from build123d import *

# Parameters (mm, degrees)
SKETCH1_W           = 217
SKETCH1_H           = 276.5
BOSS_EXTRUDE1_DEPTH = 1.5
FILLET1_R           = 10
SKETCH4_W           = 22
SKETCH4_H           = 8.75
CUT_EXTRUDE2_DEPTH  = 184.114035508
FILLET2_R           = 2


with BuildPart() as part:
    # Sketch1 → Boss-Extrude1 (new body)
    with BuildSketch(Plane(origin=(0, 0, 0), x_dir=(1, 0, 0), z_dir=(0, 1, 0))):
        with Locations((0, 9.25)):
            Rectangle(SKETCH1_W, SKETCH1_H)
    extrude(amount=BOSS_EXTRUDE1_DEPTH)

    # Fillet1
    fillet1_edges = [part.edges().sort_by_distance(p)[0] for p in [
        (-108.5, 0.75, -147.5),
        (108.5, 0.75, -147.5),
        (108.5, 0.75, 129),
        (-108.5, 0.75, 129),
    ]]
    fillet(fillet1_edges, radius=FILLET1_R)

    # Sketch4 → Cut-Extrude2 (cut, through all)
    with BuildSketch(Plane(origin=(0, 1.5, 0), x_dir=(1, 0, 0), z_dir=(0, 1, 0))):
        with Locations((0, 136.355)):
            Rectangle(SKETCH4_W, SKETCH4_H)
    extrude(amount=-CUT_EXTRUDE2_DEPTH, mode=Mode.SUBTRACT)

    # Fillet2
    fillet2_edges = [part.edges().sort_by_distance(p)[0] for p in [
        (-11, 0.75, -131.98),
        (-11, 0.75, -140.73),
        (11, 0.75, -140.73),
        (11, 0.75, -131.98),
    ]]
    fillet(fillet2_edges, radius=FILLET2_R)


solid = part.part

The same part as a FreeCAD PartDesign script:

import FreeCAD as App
import Part
import Sketcher
from FreeCAD import Vector


def edges_at(feature, points):
    """Names of the edges that pass closest to the given points."""
    edges = feature.Shape.Edges
    near = lambda p: min(range(len(edges)), key=lambda i: edges[i].distToShape(Part.Vertex(*p))[0])
    return sorted({f"Edge{near(p) + 1}" for p in points})

doc = App.newDocument("Part")
params = doc.addObject("Spreadsheet::Sheet", "Params")
for row, (alias, value) in enumerate([
    ("sketch1_width", "217 mm"),
    ("sketch1_height", "276.5 mm"),
    ("pad1_length", "1.5 mm"),
    ("fillet_radius", "10 mm"),
    ("sketch2_width", "22 mm"),
    ("sketch2_height", "8.75 mm"),
    ("fillet2_radius", "2 mm"),
], start=1):
    params.set(f"A{row}", alias)
    params.set(f"B{row}", "=" + value)
    params.setAlias(f"B{row}", alias)

body = doc.addObject("PartDesign::Body", "Body")

# Sketch on XZ plane
sketch1 = body.newObject("Sketcher::SketchObject", "Sketch")
sketch1.AttachmentSupport = (doc.getObject("XZ_Plane"), [""])
sketch1.MapMode = "FlatFace"
sketch1.addGeometry(Part.LineSegment(Vector(-108, -148, 0), Vector(-108, 129, 0)), False)
sketch1.addGeometry(Part.LineSegment(Vector(-108, 129, 0), Vector(108, 129, 0)), False)
sketch1.addGeometry(Part.LineSegment(Vector(108, 129, 0), Vector(108, -148, 0)), False)
sketch1.addGeometry(Part.LineSegment(Vector(108, -148, 0), Vector(-108, -148, 0)), False)
sketch1.addConstraint(Sketcher.Constraint("Coincident", 0, 2, 1, 1))
sketch1.addConstraint(Sketcher.Constraint("Coincident", 1, 2, 2, 1))
sketch1.addConstraint(Sketcher.Constraint("Coincident", 2, 2, 3, 1))
sketch1.addConstraint(Sketcher.Constraint("Coincident", 3, 2, 0, 1))
sketch1.addConstraint(Sketcher.Constraint("Vertical", 0))
sketch1.addConstraint(Sketcher.Constraint("Horizontal", 1))
sketch1.addConstraint(Sketcher.Constraint("Vertical", 2))
sketch1.addConstraint(Sketcher.Constraint("Horizontal", 3))
sketch1.addConstraint(Sketcher.Constraint("DistanceX", 1, 1, 1, 2, 217.0))
sketch1.addConstraint(Sketcher.Constraint("DistanceY", 0, 1, 0, 2, 276.5))
sketch1.addConstraint(Sketcher.Constraint("DistanceY", -1, 1, 0, 2, 129.0))
sketch1.addConstraint(Sketcher.Constraint("DistanceX", 0, 2, -1, 1, 108.5))
sketch1.setExpression("Constraints[8]", "Params.sketch1_width")
sketch1.setExpression("Constraints[9]", "Params.sketch1_height")
pad1 = body.newObject("PartDesign::Pad", "Pad")
pad1.Profile = sketch1
pad1.setExpression("Length", "Params.pad1_length")
pad1.Reversed = True
doc.recompute()

fillet = body.newObject("PartDesign::Fillet", "Fillet")
fillet.Base = (pad1, edges_at(pad1, [
    (-108.5, 0.75, -147.5),
    (108.5, 0.75, -147.5),
    (108.5, 0.75, 129),
    (-108.5, 0.75, 129),
]))
fillet.setExpression("Radius", "Params.fillet_radius")

# Sketch on XZ plane
sketch2 = body.newObject("Sketcher::SketchObject", "Sketch001")
sketch2.AttachmentSupport = (doc.getObject("XZ_Plane"), [""])
sketch2.MapMode = "FlatFace"
sketch2.AttachmentOffset = App.Placement(Vector(0, 0, -1.5), App.Rotation())
sketch2.addGeometry(Part.LineSegment(Vector(-11, -141, 0), Vector(-11, -132, 0)), False)
sketch2.addGeometry(Part.LineSegment(Vector(-11, -132, 0), Vector(11, -132, 0)), False)
sketch2.addGeometry(Part.LineSegment(Vector(11, -132, 0), Vector(11, -141, 0)), False)
sketch2.addGeometry(Part.LineSegment(Vector(11, -141, 0), Vector(-11, -141, 0)), False)
sketch2.addConstraint(Sketcher.Constraint("Coincident", 0, 2, 1, 1))
sketch2.addConstraint(Sketcher.Constraint("Coincident", 1, 2, 2, 1))
sketch2.addConstraint(Sketcher.Constraint("Coincident", 2, 2, 3, 1))
sketch2.addConstraint(Sketcher.Constraint("Coincident", 3, 2, 0, 1))
sketch2.addConstraint(Sketcher.Constraint("Vertical", 0))
sketch2.addConstraint(Sketcher.Constraint("Horizontal", 1))
sketch2.addConstraint(Sketcher.Constraint("Vertical", 2))
sketch2.addConstraint(Sketcher.Constraint("Horizontal", 3))
sketch2.addConstraint(Sketcher.Constraint("DistanceX", 1, 1, 1, 2, 22.0))
sketch2.addConstraint(Sketcher.Constraint("DistanceX", 0, 2, -1, 1, 11.0))
sketch2.addConstraint(Sketcher.Constraint("DistanceY", 0, 1, 0, 2, 8.75))
sketch2.addConstraint(Sketcher.Constraint("DistanceY", 0, 2, -1, 1, 131.98))
sketch2.setExpression("Constraints[8]", "Params.sketch2_width")
sketch2.setExpression("Constraints[10]", "Params.sketch2_height")
pocket1 = body.newObject("PartDesign::Pocket", "Pocket")
pocket1.Profile = sketch2
pocket1.Type = "ThroughAll"
pocket1.Reversed = True
doc.recompute()

fillet2 = body.newObject("PartDesign::Fillet", "Fillet001")
fillet2.Base = (pocket1, edges_at(pocket1, [
    (-11, 0.75, -131.98),
    (-11, 0.75, -140.73),
    (11, 0.75, -140.73),
    (11, 0.75, -131.98),
]))
fillet2.setExpression("Radius", "Params.fillet2_radius")

doc.recompute()
